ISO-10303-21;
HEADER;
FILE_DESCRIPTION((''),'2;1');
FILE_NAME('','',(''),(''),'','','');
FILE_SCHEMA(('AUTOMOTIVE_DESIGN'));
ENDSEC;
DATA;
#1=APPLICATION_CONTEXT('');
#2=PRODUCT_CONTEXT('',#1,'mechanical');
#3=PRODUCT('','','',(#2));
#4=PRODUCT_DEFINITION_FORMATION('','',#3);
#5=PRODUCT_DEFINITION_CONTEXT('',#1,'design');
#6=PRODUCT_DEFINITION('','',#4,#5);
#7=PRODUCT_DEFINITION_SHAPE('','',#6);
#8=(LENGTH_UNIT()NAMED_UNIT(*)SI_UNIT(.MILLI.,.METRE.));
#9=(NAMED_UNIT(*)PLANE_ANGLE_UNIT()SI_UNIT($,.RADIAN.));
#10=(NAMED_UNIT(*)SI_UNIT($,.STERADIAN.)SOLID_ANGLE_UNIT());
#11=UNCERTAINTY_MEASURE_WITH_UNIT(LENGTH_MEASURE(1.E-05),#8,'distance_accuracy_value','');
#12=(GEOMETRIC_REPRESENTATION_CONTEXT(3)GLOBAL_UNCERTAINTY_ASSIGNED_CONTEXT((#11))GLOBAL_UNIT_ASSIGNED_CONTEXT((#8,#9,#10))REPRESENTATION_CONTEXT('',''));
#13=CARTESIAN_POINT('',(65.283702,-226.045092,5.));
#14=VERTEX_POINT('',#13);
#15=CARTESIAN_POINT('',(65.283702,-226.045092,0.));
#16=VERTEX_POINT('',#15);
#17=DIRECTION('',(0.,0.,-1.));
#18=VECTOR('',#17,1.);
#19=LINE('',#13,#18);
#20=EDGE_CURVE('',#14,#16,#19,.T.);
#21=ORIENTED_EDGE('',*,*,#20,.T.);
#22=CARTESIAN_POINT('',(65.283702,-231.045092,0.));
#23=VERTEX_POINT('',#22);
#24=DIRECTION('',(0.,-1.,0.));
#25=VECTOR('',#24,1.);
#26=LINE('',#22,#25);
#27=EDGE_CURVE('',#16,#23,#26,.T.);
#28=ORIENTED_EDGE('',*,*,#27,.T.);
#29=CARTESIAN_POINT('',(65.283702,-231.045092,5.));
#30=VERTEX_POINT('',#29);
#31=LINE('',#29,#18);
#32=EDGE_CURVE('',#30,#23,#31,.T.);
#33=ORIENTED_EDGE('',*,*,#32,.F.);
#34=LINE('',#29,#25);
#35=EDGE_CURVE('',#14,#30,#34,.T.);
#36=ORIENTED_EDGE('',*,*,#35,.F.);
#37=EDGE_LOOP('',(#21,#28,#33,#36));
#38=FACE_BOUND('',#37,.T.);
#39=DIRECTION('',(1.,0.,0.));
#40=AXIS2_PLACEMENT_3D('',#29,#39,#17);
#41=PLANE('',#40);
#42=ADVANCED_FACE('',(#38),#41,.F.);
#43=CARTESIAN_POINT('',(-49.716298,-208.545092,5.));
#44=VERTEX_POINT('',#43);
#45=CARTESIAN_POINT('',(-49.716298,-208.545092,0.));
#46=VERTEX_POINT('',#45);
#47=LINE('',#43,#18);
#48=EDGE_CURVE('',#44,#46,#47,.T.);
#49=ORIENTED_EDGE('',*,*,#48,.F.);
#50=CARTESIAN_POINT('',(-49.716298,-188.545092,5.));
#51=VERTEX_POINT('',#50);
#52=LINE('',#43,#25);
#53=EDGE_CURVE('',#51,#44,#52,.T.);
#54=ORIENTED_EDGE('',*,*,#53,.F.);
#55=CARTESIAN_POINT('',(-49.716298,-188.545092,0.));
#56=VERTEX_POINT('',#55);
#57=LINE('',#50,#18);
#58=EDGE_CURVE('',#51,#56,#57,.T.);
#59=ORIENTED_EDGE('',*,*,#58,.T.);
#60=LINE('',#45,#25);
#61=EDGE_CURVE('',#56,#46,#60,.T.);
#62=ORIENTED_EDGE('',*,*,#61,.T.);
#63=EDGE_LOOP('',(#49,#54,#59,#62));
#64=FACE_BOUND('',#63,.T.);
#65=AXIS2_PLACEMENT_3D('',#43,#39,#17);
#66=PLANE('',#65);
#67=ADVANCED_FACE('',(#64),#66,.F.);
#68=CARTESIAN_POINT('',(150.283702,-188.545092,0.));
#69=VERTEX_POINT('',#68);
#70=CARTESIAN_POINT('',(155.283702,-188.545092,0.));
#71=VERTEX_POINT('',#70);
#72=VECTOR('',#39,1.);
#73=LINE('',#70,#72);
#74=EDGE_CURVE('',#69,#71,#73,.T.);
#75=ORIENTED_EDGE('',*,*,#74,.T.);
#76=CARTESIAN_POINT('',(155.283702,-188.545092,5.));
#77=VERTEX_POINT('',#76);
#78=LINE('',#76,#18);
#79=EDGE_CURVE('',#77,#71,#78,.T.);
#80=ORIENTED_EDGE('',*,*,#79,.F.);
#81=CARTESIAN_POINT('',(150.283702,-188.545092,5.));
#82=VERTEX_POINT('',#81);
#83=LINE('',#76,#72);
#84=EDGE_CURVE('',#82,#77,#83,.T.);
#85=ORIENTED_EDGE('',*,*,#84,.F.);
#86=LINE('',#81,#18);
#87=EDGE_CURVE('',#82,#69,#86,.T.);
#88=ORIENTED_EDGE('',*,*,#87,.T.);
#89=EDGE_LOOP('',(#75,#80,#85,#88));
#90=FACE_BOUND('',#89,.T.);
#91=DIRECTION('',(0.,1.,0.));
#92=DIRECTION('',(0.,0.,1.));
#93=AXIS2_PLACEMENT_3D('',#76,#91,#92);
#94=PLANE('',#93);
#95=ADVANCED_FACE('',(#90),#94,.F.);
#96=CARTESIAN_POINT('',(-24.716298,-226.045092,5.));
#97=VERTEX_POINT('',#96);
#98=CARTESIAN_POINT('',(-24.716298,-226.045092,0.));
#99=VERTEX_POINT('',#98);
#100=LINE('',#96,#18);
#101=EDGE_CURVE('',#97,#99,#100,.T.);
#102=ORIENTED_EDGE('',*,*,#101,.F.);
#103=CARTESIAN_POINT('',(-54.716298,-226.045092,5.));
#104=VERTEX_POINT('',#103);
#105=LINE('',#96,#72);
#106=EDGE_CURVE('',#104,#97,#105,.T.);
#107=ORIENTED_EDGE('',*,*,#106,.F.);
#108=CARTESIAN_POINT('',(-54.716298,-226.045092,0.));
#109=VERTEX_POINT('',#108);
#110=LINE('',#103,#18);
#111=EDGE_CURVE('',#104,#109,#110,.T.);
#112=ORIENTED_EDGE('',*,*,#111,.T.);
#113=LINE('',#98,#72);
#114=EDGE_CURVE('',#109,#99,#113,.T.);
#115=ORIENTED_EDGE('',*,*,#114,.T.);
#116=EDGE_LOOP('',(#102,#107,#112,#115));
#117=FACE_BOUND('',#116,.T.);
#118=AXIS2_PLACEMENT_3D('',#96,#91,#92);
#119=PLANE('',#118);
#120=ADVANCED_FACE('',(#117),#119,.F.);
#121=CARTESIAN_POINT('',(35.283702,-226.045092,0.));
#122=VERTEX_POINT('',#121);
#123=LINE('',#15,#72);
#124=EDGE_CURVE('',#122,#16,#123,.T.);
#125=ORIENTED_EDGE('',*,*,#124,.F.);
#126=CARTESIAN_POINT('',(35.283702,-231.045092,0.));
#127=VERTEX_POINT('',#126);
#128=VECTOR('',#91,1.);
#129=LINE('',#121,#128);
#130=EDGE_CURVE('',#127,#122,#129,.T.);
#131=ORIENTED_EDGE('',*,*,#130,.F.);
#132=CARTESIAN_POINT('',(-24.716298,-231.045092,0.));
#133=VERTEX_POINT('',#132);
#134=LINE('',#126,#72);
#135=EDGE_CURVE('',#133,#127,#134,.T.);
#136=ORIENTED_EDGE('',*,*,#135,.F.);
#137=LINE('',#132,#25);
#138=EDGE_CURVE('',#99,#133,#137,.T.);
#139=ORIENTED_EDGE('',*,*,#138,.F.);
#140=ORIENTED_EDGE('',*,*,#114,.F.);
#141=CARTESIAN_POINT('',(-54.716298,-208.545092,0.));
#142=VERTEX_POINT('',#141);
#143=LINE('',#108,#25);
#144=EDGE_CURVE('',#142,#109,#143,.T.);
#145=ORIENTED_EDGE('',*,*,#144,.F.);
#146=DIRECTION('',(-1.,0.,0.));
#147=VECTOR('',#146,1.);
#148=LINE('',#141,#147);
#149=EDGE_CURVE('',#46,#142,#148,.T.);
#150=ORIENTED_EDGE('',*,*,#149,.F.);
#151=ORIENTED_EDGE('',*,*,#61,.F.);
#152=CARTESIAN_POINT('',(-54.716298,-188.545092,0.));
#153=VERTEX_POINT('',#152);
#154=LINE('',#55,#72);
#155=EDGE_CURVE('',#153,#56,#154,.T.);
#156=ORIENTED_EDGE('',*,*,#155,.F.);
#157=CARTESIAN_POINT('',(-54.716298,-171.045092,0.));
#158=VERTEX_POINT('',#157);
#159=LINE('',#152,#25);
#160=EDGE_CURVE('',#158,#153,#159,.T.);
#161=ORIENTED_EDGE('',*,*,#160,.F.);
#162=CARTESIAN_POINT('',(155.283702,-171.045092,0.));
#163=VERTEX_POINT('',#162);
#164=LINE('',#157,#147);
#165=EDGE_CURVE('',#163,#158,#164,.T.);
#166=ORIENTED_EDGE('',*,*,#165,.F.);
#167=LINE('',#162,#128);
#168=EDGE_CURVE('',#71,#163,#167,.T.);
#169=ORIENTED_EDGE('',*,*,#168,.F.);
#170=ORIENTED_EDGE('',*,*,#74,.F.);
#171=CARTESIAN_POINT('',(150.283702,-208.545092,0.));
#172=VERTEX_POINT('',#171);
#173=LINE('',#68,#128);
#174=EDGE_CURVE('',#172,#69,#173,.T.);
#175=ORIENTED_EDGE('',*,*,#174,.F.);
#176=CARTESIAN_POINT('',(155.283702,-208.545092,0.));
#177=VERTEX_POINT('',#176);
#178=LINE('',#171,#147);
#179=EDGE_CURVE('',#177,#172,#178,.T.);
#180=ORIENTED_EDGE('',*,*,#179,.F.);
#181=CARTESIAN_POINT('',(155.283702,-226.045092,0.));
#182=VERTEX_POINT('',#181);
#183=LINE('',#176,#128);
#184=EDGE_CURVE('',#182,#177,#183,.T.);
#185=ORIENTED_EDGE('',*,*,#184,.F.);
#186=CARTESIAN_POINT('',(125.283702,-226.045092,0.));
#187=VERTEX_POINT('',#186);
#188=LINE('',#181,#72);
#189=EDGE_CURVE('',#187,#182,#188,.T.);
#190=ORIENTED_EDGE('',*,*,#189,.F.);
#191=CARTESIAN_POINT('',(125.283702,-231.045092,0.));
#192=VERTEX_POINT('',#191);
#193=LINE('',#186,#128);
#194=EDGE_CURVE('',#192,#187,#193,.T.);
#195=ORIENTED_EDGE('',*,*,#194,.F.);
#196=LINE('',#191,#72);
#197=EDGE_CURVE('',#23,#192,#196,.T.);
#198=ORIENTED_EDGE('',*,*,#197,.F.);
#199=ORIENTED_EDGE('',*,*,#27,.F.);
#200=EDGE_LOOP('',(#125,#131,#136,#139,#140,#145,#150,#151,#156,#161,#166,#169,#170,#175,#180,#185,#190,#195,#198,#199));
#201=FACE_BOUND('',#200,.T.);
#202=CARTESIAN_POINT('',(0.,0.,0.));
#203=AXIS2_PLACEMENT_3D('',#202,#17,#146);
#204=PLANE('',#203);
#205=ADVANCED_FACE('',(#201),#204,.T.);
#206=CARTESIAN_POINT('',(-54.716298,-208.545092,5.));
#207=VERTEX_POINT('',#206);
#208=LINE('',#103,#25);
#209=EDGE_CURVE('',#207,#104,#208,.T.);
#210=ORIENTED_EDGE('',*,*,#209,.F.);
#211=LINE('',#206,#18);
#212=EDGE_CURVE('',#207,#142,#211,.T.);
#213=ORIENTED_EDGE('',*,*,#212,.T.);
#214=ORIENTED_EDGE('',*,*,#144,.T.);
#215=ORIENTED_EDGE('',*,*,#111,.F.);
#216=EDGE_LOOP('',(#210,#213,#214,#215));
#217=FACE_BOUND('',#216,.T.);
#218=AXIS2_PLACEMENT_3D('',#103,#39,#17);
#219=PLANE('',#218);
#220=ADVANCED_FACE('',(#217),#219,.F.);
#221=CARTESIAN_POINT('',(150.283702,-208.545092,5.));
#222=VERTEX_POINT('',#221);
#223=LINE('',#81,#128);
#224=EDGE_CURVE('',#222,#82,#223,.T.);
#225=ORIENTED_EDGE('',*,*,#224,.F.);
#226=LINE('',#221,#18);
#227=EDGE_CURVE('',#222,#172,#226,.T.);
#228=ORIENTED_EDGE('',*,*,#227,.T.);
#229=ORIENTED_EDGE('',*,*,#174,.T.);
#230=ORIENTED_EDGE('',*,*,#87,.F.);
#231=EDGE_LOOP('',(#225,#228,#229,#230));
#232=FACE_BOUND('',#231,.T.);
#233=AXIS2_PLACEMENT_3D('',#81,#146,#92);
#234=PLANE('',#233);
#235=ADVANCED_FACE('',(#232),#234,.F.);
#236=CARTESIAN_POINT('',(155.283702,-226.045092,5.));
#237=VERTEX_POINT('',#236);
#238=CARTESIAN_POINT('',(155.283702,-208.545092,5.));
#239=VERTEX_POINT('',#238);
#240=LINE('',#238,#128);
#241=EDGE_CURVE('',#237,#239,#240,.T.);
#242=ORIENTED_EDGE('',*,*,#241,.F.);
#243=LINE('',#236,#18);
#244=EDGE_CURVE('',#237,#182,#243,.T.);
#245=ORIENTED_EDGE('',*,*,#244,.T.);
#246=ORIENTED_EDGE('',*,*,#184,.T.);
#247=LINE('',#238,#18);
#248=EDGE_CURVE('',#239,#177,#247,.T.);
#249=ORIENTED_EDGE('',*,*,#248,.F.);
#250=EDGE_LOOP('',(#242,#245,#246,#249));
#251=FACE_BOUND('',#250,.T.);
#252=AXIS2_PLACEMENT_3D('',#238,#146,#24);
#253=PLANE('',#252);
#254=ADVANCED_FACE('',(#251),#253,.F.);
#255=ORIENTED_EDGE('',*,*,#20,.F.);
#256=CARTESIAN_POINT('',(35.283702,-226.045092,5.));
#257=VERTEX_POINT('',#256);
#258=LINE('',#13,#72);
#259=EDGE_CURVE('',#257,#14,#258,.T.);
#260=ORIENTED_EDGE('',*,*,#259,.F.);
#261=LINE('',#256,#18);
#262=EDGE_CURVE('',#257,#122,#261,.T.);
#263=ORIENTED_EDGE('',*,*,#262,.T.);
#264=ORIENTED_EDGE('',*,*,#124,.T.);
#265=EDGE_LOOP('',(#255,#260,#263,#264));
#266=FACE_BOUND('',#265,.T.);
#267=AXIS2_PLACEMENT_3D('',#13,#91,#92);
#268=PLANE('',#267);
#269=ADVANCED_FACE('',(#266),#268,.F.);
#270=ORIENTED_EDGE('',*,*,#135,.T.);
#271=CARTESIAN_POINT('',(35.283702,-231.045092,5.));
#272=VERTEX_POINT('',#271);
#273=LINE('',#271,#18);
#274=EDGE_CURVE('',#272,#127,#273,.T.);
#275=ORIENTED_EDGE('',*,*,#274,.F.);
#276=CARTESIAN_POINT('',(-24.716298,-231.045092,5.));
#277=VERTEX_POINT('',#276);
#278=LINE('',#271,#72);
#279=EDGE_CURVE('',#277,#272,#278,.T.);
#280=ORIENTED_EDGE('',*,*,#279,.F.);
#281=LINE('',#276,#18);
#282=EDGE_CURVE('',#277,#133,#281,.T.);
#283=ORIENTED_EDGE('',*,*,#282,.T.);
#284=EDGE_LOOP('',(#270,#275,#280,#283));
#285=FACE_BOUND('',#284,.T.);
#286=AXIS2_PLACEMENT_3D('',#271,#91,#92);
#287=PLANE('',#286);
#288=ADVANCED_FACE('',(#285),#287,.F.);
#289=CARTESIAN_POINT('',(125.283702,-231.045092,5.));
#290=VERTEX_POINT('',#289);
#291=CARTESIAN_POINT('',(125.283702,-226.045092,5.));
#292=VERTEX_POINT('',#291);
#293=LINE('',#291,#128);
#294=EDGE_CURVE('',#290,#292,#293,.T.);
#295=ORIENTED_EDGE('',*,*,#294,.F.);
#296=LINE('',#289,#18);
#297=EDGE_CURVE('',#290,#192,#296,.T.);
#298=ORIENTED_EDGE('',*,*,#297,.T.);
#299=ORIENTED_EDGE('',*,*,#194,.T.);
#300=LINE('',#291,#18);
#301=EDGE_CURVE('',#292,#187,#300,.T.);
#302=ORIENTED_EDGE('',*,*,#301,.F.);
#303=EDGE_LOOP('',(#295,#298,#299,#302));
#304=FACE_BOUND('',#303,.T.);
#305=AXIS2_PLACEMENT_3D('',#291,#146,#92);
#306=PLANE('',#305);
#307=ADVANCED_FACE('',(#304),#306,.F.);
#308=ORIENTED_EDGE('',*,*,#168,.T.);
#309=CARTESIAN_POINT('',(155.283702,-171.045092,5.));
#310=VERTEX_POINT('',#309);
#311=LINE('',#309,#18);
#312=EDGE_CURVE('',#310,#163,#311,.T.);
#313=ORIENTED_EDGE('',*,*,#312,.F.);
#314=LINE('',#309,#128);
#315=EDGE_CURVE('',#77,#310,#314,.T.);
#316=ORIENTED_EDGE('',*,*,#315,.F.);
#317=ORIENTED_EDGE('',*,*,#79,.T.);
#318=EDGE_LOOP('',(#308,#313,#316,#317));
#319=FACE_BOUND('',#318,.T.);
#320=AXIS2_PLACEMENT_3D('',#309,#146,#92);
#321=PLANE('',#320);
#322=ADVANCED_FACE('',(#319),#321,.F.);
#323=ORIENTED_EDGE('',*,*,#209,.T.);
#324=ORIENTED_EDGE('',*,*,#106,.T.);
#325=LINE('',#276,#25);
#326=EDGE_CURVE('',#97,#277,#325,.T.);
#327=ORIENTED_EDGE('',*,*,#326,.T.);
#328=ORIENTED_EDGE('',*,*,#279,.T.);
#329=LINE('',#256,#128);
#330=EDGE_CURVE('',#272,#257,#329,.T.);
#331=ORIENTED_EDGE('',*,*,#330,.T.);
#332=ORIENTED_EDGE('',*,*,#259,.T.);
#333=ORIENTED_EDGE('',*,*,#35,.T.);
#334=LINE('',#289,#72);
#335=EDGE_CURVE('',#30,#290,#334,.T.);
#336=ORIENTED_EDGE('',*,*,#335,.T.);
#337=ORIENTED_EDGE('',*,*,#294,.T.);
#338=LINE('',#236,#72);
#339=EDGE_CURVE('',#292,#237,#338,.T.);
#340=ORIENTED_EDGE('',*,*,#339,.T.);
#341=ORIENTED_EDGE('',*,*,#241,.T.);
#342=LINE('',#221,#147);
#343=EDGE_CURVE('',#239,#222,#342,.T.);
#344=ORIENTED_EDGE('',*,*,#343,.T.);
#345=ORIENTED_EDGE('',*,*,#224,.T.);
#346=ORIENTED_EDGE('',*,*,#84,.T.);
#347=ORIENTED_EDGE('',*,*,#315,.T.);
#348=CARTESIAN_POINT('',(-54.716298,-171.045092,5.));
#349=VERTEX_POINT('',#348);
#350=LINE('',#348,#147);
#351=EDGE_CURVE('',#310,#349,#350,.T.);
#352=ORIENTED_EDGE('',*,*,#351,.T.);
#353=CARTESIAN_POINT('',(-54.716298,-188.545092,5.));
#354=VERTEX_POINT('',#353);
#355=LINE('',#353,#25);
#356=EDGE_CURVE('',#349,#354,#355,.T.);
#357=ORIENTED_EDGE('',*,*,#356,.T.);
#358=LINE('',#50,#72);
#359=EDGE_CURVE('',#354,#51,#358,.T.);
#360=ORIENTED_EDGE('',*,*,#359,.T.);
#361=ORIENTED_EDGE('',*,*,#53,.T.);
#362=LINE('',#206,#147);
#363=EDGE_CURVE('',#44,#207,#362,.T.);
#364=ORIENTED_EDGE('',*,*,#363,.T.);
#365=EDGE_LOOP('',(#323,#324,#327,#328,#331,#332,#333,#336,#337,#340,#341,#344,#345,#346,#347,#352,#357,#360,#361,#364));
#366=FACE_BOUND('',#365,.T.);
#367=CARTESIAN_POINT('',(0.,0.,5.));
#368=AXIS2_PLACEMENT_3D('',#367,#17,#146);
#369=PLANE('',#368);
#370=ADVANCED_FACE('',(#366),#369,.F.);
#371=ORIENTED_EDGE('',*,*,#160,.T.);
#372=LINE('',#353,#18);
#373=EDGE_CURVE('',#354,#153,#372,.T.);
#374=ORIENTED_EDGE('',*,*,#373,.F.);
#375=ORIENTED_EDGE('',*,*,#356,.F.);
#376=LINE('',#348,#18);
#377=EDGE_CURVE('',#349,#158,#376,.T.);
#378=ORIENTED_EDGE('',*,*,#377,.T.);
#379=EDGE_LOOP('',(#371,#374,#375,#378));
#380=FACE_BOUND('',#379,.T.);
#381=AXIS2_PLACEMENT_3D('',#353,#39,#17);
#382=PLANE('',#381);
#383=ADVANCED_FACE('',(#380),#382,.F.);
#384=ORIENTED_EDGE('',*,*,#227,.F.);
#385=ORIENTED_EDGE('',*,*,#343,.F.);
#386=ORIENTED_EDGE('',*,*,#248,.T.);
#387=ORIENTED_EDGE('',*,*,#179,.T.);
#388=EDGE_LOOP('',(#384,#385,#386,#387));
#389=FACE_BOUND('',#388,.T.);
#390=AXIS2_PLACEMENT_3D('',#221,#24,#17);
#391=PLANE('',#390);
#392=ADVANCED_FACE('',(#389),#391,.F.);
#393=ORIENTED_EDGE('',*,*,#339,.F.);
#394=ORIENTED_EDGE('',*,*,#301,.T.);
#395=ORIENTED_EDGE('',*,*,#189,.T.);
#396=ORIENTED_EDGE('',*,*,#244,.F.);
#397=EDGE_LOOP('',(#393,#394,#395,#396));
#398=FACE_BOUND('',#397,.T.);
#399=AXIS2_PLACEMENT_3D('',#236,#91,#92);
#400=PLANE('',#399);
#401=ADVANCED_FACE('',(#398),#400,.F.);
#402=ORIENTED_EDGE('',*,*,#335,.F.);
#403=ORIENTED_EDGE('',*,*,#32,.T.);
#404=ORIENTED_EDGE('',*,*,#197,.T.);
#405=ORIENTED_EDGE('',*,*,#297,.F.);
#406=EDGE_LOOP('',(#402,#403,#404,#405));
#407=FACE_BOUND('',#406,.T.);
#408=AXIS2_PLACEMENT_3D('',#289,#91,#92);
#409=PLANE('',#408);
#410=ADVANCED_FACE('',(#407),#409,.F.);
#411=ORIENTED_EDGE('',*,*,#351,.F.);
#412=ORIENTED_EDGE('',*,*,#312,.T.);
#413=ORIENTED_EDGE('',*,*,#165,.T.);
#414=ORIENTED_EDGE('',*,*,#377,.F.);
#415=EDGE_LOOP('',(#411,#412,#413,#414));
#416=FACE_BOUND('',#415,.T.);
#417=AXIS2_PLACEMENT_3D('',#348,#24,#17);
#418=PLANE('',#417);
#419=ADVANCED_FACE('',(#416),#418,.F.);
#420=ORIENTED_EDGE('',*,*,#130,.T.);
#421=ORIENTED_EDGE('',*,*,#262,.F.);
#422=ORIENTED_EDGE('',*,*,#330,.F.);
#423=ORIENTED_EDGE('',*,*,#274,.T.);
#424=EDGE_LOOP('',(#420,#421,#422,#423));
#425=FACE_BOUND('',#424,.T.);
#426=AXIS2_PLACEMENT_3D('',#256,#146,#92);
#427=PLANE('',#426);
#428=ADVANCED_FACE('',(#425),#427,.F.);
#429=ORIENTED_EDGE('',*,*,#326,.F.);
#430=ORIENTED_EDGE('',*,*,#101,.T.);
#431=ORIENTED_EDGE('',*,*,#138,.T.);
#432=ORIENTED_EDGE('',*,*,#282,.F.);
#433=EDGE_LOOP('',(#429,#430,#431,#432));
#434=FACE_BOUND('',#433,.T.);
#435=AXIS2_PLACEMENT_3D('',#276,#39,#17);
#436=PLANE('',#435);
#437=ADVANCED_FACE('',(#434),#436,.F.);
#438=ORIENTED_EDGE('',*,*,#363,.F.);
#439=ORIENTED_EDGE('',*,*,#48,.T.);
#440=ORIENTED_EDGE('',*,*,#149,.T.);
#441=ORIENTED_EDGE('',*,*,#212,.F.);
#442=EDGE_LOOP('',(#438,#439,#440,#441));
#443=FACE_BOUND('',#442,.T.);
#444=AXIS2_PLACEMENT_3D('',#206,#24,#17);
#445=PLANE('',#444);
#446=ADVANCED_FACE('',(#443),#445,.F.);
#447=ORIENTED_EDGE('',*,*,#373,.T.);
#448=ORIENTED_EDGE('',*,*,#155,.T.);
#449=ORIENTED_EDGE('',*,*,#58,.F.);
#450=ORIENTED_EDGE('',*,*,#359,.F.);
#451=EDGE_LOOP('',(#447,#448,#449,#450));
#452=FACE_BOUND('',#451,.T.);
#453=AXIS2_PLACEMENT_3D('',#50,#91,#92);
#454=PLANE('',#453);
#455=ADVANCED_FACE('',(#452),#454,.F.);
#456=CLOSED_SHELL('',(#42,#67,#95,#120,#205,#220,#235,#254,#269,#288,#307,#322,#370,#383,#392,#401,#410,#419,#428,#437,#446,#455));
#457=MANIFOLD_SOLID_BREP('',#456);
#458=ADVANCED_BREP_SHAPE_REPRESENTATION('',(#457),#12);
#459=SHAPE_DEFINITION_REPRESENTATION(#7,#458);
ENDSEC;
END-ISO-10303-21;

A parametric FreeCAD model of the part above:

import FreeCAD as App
import Part
import Sketcher

V = App.Vector


def add_polygon(sketch, points):
    """Adds a closed chain of lines whose ends are joined by coincident constraints."""
    first, n = sketch.GeometryCount, len(points)
    for a, b in zip(points, points[1:] + points[:1]):
        sketch.addGeometry(Part.LineSegment(App.Vector(*a, 0), App.Vector(*b, 0)), False)
    for i in range(n):
        sketch.addConstraint(Sketcher.Constraint("Coincident", first + i, 2, first + (i + 1) % n, 1))

doc = App.newDocument("Part")
body = doc.addObject("PartDesign::Body", "Body")

sketch1 = body.newObject("Sketcher::SketchObject", "Sketch")
sketch1.AttachmentSupport = (doc.getObject("XY_Plane"), [""])
sketch1.MapMode = "FlatFace"
add_polygon(sketch1, [(155, -171), (-55, -171), (-55, -189), (-50, -189), (-50, -209), (-55, -209), (-55, -226), (-25, -226), (-25, -231), (35, -231), (35, -226), (65, -226), (65, -231), (125, -231), (125, -226), (155, -226), (155, -209), (150, -209), (150, -189), (155, -189)])
sketch1.addConstraint(Sketcher.Constraint("Horizontal", 0))
sketch1.addConstraint(Sketcher.Constraint("Vertical", 1))
sketch1.addConstraint(Sketcher.Constraint("Horizontal", 2))
sketch1.addConstraint(Sketcher.Constraint("Vertical", 3))
sketch1.addConstraint(Sketcher.Constraint("Horizontal", 4))
sketch1.addConstraint(Sketcher.Constraint("Vertical", 5))
sketch1.addConstraint(Sketcher.Constraint("Horizontal", 6))
sketch1.addConstraint(Sketcher.Constraint("Vertical", 7))
sketch1.addConstraint(Sketcher.Constraint("Horizontal", 8))
sketch1.addConstraint(Sketcher.Constraint("Vertical", 9))
sketch1.addConstraint(Sketcher.Constraint("Horizontal", 10))
sketch1.addConstraint(Sketcher.Constraint("Vertical", 11))
sketch1.addConstraint(Sketcher.Constraint("Horizontal", 12))
sketch1.addConstraint(Sketcher.Constraint("Vertical", 13))
sketch1.addConstraint(Sketcher.Constraint("Horizontal", 14))
sketch1.addConstraint(Sketcher.Constraint("Vertical", 15))
sketch1.addConstraint(Sketcher.Constraint("Horizontal", 16))
sketch1.addConstraint(Sketcher.Constraint("Vertical", 17))
sketch1.addConstraint(Sketcher.Constraint("Horizontal", 18))
sketch1.addConstraint(Sketcher.Constraint("Vertical", 19))
sketch1.addConstraint(Sketcher.Constraint("Horizontal", 6, 2, 9, 2))
sketch1.addConstraint(Sketcher.Constraint("Horizontal", 8, 2, 11, 2))
sketch1.addConstraint(Sketcher.Constraint("Horizontal", 10, 2, 13, 2))
sketch1.addConstraint(Sketcher.Constraint("Horizontal", 4, 2, 15, 2))
sketch1.addConstraint(Sketcher.Constraint("Horizontal", 2, 2, 17, 2))
sketch1.addConstraint(Sketcher.Constraint("Vertical", 1, 2, 4, 2))
sketch1.addConstraint(Sketcher.Constraint("Vertical", 15, 2, 18, 2))
sketch1.addConstraint(Sketcher.Constraint("Equal", 6, 10))
sketch1.addConstraint(Sketcher.Constraint("Equal", 8, 12))
sketch1.addConstraint(Sketcher.Constraint("Equal", 10, 14))
sketch1.addConstraint(Sketcher.Constraint("Equal", 4, 16))
sketch1.addConstraint(Sketcher.Constraint("Equal", 1, 5))
sketch1.addConstraint(Sketcher.Constraint("Equal", 18, 7))
sketch1.addConstraint(Sketcher.Constraint("DistanceX", 0, 2, 0, 1, 210.0))
sketch1.addConstraint(Sketcher.Constraint("DistanceX", 2, 1, 2, 2, 5.0))
sketch1.addConstraint(Sketcher.Constraint("DistanceX", 6, 1, 6, 2, 30.0))
sketch1.addConstraint(Sketcher.Constraint("DistanceY", 3, 2, 3, 1, 20.0))
sketch1.addConstraint(Sketcher.Constraint("DistanceY", 1, 2, 1, 1, 17.5))
sketch1.addConstraint(Sketcher.Constraint("DistanceY", 0, 2, -1, 1, 171.045092))
sketch1.addConstraint(Sketcher.Constraint("DistanceX", 0, 2, -1, 1, 54.716298))
pad1 = body.newObject("PartDesign::Pad", "Pad")
pad1.Profile = sketch1
pad1.Length = 5

doc.recompute()
